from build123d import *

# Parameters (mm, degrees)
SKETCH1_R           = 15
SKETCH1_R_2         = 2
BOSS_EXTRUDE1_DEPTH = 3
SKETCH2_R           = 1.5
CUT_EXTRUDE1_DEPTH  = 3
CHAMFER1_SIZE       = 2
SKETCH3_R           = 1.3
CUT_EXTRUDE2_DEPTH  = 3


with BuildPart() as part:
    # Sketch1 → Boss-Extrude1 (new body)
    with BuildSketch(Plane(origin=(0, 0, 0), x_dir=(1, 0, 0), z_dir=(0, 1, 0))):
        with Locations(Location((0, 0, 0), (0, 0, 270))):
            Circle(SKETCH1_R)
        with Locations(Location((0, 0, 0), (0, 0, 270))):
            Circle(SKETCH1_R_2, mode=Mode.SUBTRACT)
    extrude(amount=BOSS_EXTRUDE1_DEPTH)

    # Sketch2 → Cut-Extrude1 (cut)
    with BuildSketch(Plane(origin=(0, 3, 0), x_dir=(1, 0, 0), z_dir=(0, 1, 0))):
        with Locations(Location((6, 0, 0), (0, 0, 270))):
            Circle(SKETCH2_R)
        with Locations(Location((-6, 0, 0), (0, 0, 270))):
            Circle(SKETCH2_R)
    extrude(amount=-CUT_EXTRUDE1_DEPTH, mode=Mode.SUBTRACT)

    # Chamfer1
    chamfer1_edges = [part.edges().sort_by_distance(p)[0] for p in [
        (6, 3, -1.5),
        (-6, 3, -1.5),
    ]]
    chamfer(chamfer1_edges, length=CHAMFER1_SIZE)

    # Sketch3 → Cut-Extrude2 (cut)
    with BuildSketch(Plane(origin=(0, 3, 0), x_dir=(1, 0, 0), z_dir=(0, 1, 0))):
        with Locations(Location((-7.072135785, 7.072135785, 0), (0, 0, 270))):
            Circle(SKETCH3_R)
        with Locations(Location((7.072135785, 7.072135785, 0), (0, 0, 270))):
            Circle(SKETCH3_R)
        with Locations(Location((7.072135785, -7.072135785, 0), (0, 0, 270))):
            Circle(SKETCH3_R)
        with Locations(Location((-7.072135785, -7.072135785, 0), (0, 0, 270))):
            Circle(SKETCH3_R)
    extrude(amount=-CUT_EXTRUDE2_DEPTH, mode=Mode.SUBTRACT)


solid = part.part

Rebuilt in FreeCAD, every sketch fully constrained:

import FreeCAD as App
import Part
import Sketcher

V = App.Vector


def edges_at(feature, points):
    """Names of the edges that pass closest to the given points."""
    edges = feature.Shape.Edges
    near = lambda p: min(range(len(edges)), key=lambda i: edges[i].distToShape(Part.Vertex(*p))[0])
    return sorted({f"Edge{near(p) + 1}" for p in points})

doc = App.newDocument("Part")
body = doc.addObject("PartDesign::Body", "Body")

# Sketch on XZ plane
sketch1 = doc.addObject("Sketcher::SketchObject", "Sketch")
body.addObject(sketch1)
sketch1.AttachmentSupport = (doc.XZ_Plane, [""])
sketch1.MapMode = "FlatFace"
sketch1.addGeometry([
    Part.Circle(V(0, 0, 0), V(0, 0, 1), 15),
    Part.Circle(V(0, 0, 0), V(0, 0, 1), 2),
], False)
sketch1.addConstraint([
    Sketcher.Constraint("Coincident", 0, 3, -1, 1),
    Sketcher.Constraint("Coincident", 1, 3, -1, 1),
    Sketcher.Constraint("Diameter", 0, 30.0),
    Sketcher.Constraint("Diameter", 1, 4.0),
])
pad1 = doc.addObject("PartDesign::Pad", "Pad")
body.addObject(pad1)
pad1.Profile = sketch1
pad1.Length = 3
pad1.Reversed = True

# Sketch on XZ plane
sketch2 = doc.addObject("Sketcher::SketchObject", "Sketch001")
body.addObject(sketch2)
sketch2.AttachmentSupport = (doc.XZ_Plane, [""])
sketch2.MapMode = "FlatFace"
sketch2.AttachmentOffset = App.Placement(V(0, 0, -3), App.Rotation())
sketch2.addGeometry([
    Part.Circle(V(6, 0, 0), V(0, 0, 1), 1.5),
    Part.Circle(V(-6, 0, 0), V(0, 0, 1), 1.5),
], False)
sketch2.addConstraint([
    Sketcher.Constraint("Equal", 0, 1),
    Sketcher.Constraint("Symmetric", 0, 3, 1, 3, -1, 1),
    Sketcher.Constraint("PointOnObject", 0, 3, -1),
    Sketcher.Constraint("Diameter", 0, 3.0),
    Sketcher.Constraint("DistanceX", -1, 1, 0, 3, 6.0),
])
pocket1 = doc.addObject("PartDesign::Pocket", "Pocket")
body.addObject(pocket1)
pocket1.Profile = sketch2
pocket1.Length = 3
pocket1.Reversed = True
doc.recompute()

chamfer = doc.addObject("PartDesign::Chamfer", "Chamfer")
body.addObject(chamfer)
chamfer.Base = (pocket1, edges_at(pocket1, [(6, 3, -1.5), (-6, 3, -1.5)]))
chamfer.Size = 2

# Sketch on XZ plane
sketch3 = doc.addObject("Sketcher::SketchObject", "Sketch002")
body.addObject(sketch3)
sketch3.AttachmentSupport = (doc.XZ_Plane, [""])
sketch3.MapMode = "FlatFace"
sketch3.AttachmentOffset = App.Placement(V(0, 0, -3), App.Rotation())
sketch3.addGeometry([
    Part.Circle(V(-7.1, -7.1, 0), V(0, 0, 1), 1.3),
    Part.Circle(V(7.1, -7.1, 0), V(0, 0, 1), 1.3),
    Part.Circle(V(7.1, 7.1, 0), V(0, 0, 1), 1.3),
    Part.Circle(V(-7.1, 7.1, 0), V(0, 0, 1), 1.3),
], False)
sketch3.addConstraint([
    Sketcher.Constraint("Equal", 0, 1),
    Sketcher.Constraint("Equal", 1, 2),
    Sketcher.Constraint("Equal", 2, 3),
    Sketcher.Constraint("Symmetric", 0, 3, 2, 3, -1, 1),
    Sketcher.Constraint("Symmetric", 1, 3, 3, 3, -1, 1),
    Sketcher.Constraint("Symmetric", 0, 3, 1, 3, -2),
    Sketcher.Constraint("Diameter", 0, 2.6),
    Sketcher.Constraint("DistanceX", 0, 3, 1, 3, 14.144272),
    Sketcher.Constraint("DistanceY", 1, 3, 2, 3, 14.144272),
])
pocket2 = doc.addObject("PartDesign::Pocket", "Pocket001")
body.addObject(pocket2)
pocket2.Profile = sketch3
pocket2.Length = 3
pocket2.Reversed = True

doc.recompute()
